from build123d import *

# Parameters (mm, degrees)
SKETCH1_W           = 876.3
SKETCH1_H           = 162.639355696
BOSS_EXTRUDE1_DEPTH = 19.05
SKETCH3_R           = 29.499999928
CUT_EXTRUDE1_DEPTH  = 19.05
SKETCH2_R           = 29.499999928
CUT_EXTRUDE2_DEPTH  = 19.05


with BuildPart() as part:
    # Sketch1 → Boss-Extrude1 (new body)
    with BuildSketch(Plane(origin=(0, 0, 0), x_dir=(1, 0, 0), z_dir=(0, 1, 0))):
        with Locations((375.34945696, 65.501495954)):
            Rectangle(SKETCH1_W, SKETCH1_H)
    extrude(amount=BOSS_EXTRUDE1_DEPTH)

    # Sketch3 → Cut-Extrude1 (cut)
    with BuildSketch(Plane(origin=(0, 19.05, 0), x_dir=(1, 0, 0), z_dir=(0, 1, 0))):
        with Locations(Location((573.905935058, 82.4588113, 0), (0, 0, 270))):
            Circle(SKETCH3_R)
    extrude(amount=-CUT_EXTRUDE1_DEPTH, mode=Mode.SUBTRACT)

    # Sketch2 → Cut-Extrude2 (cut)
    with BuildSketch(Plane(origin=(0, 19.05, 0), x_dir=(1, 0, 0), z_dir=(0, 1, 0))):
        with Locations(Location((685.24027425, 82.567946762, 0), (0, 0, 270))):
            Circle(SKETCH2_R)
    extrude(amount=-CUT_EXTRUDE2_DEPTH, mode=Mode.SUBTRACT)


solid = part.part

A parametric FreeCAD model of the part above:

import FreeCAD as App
import Part
import Sketcher

V = App.Vector
Q = App.Units.Quantity


def add_polygon(sketch, points):
    """Adds a closed chain of lines whose ends are joined by coincident constraints."""
    first, n = sketch.GeometryCount, len(points)
    for a, b in zip(points, points[1:] + points[:1]):
        sketch.addGeometry(Part.LineSegment(App.Vector(*a, 0), App.Vector(*b, 0)), False)
    for i in range(n):
        sketch.addConstraint(Sketcher.Constraint("Coincident", first + i, 2, first + (i + 1) % n, 1))

doc = App.newDocument("Part")
body = doc.addObject("PartDesign::Body", "Body")

# Sketch on XZ plane
sketch1 = body.newObject("Sketcher::SketchObject", "Sketch")
sketch1.AttachmentSupport = (doc.getObject("XZ_Plane"), [""])
sketch1.MapMode = "FlatFace"
add_polygon(sketch1, [(-63, -147), (-63, 16), (813, 16), (813, -147)])  # lines 0-3
sketch1.addConstraint([
    Sketcher.Constraint("Vertical", 0),
    Sketcher.Constraint("Horizontal", 1),
    Sketcher.Constraint("Vertical", 2),
    Sketcher.Constraint("Horizontal", 3),
    Sketcher.Constraint("DistanceX", 1, 1, 1, 2, Q("34.5 in")),
    Sketcher.Constraint("DistanceY", 0, 1, 0, 2, 162.639356),
    Sketcher.Constraint("DistanceY", -1, 1, 0, 2, 15.818182),
    Sketcher.Constraint("DistanceX", 0, 2, -1, 1, 62.800543),
])
pad1 = body.newObject("PartDesign::Pad", "Pad")
pad1.Profile = sketch1
pad1.Length = Q("0.75 in")
pad1.Reversed = True

# Sketch on XZ plane
sketch2 = body.newObject("Sketcher::SketchObject", "Sketch001")
sketch2.AttachmentSupport = (doc.getObject("XZ_Plane"), [""])
sketch2.MapMode = "FlatFace"
sketch2.AttachmentOffset = App.Placement(V(0, 0, -0.75 * 25.4), App.Rotation())
sketch2.addGeometry(Part.Circle(V(574, -82, 0), V(0, 0, 1), 29), False)
sketch2.addConstraint([
    Sketcher.Constraint("Diameter", 0, 59.0),
    Sketcher.Constraint("DistanceY", 0, 3, -1, 1, 82.458811),
    Sketcher.Constraint("DistanceX", -1, 1, 0, 3, 573.905935),
])
pocket1 = body.newObject("PartDesign::Pocket", "Pocket")
pocket1.Profile = sketch2
pocket1.Length = Q("0.75 in")
pocket1.Reversed = True

# Sketch on XZ plane
sketch3 = body.newObject("Sketcher::SketchObject", "Sketch002")
sketch3.AttachmentSupport = (doc.getObject("XZ_Plane"), [""])
sketch3.MapMode = "FlatFace"
sketch3.AttachmentOffset = App.Placement(V(0, 0, -0.75 * 25.4), App.Rotation())
sketch3.addGeometry(Part.Circle(V(685, -83, 0), V(0, 0, 1), 29), False)
sketch3.addConstraint([
    Sketcher.Constraint("Diameter", 0, 59.0),
    Sketcher.Constraint("DistanceX", -1, 1, 0, 3, 685.240274),
    Sketcher.Constraint("DistanceY", 0, 3, -1, 1, 82.567947),
])
pocket2 = body.newObject("PartDesign::Pocket", "Pocket001")
pocket2.Profile = sketch3
pocket2.Length = Q("0.75 in")
pocket2.Reversed = True

doc.recompute()
